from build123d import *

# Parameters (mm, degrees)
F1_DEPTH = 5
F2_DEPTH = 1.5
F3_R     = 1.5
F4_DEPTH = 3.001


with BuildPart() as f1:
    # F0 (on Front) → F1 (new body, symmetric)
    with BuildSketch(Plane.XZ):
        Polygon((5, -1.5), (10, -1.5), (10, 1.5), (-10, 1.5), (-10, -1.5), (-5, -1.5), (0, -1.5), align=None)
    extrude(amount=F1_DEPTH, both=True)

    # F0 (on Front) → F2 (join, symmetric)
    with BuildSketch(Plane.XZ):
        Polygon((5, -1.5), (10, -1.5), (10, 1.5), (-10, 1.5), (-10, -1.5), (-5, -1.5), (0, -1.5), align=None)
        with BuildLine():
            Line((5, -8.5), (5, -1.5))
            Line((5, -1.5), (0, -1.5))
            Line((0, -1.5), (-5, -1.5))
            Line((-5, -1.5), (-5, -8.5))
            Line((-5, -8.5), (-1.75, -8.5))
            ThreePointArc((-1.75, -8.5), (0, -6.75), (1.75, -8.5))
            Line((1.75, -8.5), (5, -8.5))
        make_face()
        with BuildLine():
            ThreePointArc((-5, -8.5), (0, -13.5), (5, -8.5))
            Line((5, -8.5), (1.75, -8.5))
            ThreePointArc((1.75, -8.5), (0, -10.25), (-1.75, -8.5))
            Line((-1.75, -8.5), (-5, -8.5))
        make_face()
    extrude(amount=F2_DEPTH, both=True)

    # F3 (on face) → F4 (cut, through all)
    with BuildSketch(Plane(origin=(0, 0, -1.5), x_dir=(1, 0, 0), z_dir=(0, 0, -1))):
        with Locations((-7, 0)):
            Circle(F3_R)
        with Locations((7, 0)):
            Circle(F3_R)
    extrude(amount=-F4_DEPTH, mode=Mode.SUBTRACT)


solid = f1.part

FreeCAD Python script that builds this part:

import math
import FreeCAD as App
import Part
import Sketcher
from FreeCAD import Vector


def add_polygon(sketch, points):
    """Adds a closed chain of lines whose ends are joined by coincident constraints."""
    first, n = sketch.GeometryCount, len(points)
    for a, b in zip(points, points[1:] + points[:1]):
        sketch.addGeometry(Part.LineSegment(App.Vector(*a, 0), App.Vector(*b, 0)), False)
    for i in range(n):
        sketch.addConstraint(Sketcher.Constraint("Coincident", first + i, 2, first + (i + 1) % n, 1))

doc = App.newDocument("Part")
body = doc.addObject("PartDesign::Body", "Body")

sketch1 = body.newObject("Sketcher::SketchObject", "Sketch")
sketch1.AttachmentSupport = (doc.getObject("XZ_Plane"), [""])
sketch1.MapMode = "FlatFace"
add_polygon(sketch1, [(10, -1.5), (10, 1.5), (-10, 1.5), (-10, -1.5)])
sketch1.addConstraint(Sketcher.Constraint("Vertical", 0))
sketch1.addConstraint(Sketcher.Constraint("Horizontal", 1))
sketch1.addConstraint(Sketcher.Constraint("Vertical", 2))
sketch1.addConstraint(Sketcher.Constraint("Horizontal", 3))
sketch1.addConstraint(Sketcher.Constraint("Symmetric", 0, 2, 2, 2, -1, 1))
sketch1.addConstraint(Sketcher.Constraint("DistanceX", 1, 2, 1, 1, 20.0))
sketch1.addConstraint(Sketcher.Constraint("DistanceY", 0, 1, 0, 2, 3.0))
pad1 = body.newObject("PartDesign::Pad", "Pad")
pad1.Profile = sketch1
pad1.Length = 10
pad1.Midplane = True

sketch2 = body.newObject("Sketcher::SketchObject", "Sketch001")
sketch2.AttachmentSupport = (doc.getObject("XZ_Plane"), [""])
sketch2.MapMode = "FlatFace"
sketch2.addGeometry(Part.LineSegment(Vector(10, -1.5, 0), Vector(10, 1.5, 0)), False)
sketch2.addGeometry(Part.LineSegment(Vector(10, 1.5, 0), Vector(-10, 1.5, 0)), False)
sketch2.addGeometry(Part.LineSegment(Vector(-10, 1.5, 0), Vector(-10, -1.5, 0)), False)
sketch2.addGeometry(Part.LineSegment(Vector(-10, -1.5, 0), Vector(-5, -1.5, 0)), False)
sketch2.addGeometry(Part.LineSegment(Vector(-5, -1.5, 0), Vector(-5, -8.5, 0)), False)
sketch2.addGeometry(Part.ArcOfCircle(Part.Circle(Vector(0, -8.5, 0), Vector(0, 0, 1), 5), math.radians(180), math.radians(360)), False)
sketch2.addGeometry(Part.LineSegment(Vector(5, -8.5, 0), Vector(5, -1.5, 0)), False)
sketch2.addGeometry(Part.LineSegment(Vector(5, -1.5, 0), Vector(10, -1.5, 0)), False)
sketch2.addGeometry(Part.Circle(Vector(0, -8.5, 0), Vector(0, 0, 1), 1.8), False)
sketch2.addConstraint(Sketcher.Constraint("Coincident", 0, 2, 1, 1))
sketch2.addConstraint(Sketcher.Constraint("Coincident", 1, 2, 2, 1))
sketch2.addConstraint(Sketcher.Constraint("Coincident", 2, 2, 3, 1))
sketch2.addConstraint(Sketcher.Constraint("Coincident", 3, 2, 4, 1))
sketch2.addConstraint(Sketcher.Constraint("Tangent", 4, 2, 5, 1))
sketch2.addConstraint(Sketcher.Constraint("Tangent", 5, 2, 6, 1))
sketch2.addConstraint(Sketcher.Constraint("Coincident", 6, 2, 7, 1))
sketch2.addConstraint(Sketcher.Constraint("Coincident", 7, 2, 0, 1))
sketch2.addConstraint(Sketcher.Constraint("Vertical", 0))
sketch2.addConstraint(Sketcher.Constraint("Horizontal", 1))
sketch2.addConstraint(Sketcher.Constraint("Vertical", 2))
sketch2.addConstraint(Sketcher.Constraint("Horizontal", 3))
sketch2.addConstraint(Sketcher.Constraint("Vertical", 4))
sketch2.addConstraint(Sketcher.Constraint("Vertical", 6))
sketch2.addConstraint(Sketcher.Constraint("Horizontal", 7))
sketch2.addConstraint(Sketcher.Constraint("Coincident", 8, 3, 5, 3))
sketch2.addConstraint(Sketcher.Constraint("Symmetric", 0, 2, 2, 2, -1, 1))
sketch2.addConstraint(Sketcher.Constraint("Symmetric", 3, 2, 6, 2, -2))
sketch2.addConstraint(Sketcher.Constraint("Radius", 5, 5.0))
sketch2.addConstraint(Sketcher.Constraint("Diameter", 8, 3.5))
sketch2.addConstraint(Sketcher.Constraint("DistanceX", 1, 2, 1, 1, 20.0))
sketch2.addConstraint(Sketcher.Constraint("DistanceY", 0, 1, 0, 2, 3.0))
sketch2.addConstraint(Sketcher.Constraint("DistanceY", 4, 2, 4, 1, 7.0))
pad2 = body.newObject("PartDesign::Pad", "Pad001")
pad2.Profile = sketch2
pad2.Length = 3
pad2.Midplane = True

sketch3 = body.newObject("Sketcher::SketchObject", "Sketch002")
sketch3.AttachmentSupport = (doc.getObject("XY_Plane"), [""])
sketch3.MapMode = "FlatFace"
sketch3.AttachmentOffset = App.Placement(Vector(0, 0, -1.5), App.Rotation())
sketch3.addGeometry(Part.Circle(Vector(-7, 0, 0), Vector(0, 0, 1), 1.5), False)
sketch3.addGeometry(Part.Circle(Vector(7, 0, 0), Vector(0, 0, 1), 1.5), False)
sketch3.addConstraint(Sketcher.Constraint("Equal", 0, 1))
sketch3.addConstraint(Sketcher.Constraint("Symmetric", 0, 3, 1, 3, -1, 1))
sketch3.addConstraint(Sketcher.Constraint("PointOnObject", 0, 3, -1))
sketch3.addConstraint(Sketcher.Constraint("Diameter", 0, 3.0))
sketch3.addConstraint(Sketcher.Constraint("DistanceX", 0, 3, -1, 1, 7.0))
pocket1 = body.newObject("PartDesign::Pocket", "Pocket")
pocket1.Profile = sketch3
pocket1.Type = "ThroughAll"
pocket1.Reversed = True

doc.recompute()
